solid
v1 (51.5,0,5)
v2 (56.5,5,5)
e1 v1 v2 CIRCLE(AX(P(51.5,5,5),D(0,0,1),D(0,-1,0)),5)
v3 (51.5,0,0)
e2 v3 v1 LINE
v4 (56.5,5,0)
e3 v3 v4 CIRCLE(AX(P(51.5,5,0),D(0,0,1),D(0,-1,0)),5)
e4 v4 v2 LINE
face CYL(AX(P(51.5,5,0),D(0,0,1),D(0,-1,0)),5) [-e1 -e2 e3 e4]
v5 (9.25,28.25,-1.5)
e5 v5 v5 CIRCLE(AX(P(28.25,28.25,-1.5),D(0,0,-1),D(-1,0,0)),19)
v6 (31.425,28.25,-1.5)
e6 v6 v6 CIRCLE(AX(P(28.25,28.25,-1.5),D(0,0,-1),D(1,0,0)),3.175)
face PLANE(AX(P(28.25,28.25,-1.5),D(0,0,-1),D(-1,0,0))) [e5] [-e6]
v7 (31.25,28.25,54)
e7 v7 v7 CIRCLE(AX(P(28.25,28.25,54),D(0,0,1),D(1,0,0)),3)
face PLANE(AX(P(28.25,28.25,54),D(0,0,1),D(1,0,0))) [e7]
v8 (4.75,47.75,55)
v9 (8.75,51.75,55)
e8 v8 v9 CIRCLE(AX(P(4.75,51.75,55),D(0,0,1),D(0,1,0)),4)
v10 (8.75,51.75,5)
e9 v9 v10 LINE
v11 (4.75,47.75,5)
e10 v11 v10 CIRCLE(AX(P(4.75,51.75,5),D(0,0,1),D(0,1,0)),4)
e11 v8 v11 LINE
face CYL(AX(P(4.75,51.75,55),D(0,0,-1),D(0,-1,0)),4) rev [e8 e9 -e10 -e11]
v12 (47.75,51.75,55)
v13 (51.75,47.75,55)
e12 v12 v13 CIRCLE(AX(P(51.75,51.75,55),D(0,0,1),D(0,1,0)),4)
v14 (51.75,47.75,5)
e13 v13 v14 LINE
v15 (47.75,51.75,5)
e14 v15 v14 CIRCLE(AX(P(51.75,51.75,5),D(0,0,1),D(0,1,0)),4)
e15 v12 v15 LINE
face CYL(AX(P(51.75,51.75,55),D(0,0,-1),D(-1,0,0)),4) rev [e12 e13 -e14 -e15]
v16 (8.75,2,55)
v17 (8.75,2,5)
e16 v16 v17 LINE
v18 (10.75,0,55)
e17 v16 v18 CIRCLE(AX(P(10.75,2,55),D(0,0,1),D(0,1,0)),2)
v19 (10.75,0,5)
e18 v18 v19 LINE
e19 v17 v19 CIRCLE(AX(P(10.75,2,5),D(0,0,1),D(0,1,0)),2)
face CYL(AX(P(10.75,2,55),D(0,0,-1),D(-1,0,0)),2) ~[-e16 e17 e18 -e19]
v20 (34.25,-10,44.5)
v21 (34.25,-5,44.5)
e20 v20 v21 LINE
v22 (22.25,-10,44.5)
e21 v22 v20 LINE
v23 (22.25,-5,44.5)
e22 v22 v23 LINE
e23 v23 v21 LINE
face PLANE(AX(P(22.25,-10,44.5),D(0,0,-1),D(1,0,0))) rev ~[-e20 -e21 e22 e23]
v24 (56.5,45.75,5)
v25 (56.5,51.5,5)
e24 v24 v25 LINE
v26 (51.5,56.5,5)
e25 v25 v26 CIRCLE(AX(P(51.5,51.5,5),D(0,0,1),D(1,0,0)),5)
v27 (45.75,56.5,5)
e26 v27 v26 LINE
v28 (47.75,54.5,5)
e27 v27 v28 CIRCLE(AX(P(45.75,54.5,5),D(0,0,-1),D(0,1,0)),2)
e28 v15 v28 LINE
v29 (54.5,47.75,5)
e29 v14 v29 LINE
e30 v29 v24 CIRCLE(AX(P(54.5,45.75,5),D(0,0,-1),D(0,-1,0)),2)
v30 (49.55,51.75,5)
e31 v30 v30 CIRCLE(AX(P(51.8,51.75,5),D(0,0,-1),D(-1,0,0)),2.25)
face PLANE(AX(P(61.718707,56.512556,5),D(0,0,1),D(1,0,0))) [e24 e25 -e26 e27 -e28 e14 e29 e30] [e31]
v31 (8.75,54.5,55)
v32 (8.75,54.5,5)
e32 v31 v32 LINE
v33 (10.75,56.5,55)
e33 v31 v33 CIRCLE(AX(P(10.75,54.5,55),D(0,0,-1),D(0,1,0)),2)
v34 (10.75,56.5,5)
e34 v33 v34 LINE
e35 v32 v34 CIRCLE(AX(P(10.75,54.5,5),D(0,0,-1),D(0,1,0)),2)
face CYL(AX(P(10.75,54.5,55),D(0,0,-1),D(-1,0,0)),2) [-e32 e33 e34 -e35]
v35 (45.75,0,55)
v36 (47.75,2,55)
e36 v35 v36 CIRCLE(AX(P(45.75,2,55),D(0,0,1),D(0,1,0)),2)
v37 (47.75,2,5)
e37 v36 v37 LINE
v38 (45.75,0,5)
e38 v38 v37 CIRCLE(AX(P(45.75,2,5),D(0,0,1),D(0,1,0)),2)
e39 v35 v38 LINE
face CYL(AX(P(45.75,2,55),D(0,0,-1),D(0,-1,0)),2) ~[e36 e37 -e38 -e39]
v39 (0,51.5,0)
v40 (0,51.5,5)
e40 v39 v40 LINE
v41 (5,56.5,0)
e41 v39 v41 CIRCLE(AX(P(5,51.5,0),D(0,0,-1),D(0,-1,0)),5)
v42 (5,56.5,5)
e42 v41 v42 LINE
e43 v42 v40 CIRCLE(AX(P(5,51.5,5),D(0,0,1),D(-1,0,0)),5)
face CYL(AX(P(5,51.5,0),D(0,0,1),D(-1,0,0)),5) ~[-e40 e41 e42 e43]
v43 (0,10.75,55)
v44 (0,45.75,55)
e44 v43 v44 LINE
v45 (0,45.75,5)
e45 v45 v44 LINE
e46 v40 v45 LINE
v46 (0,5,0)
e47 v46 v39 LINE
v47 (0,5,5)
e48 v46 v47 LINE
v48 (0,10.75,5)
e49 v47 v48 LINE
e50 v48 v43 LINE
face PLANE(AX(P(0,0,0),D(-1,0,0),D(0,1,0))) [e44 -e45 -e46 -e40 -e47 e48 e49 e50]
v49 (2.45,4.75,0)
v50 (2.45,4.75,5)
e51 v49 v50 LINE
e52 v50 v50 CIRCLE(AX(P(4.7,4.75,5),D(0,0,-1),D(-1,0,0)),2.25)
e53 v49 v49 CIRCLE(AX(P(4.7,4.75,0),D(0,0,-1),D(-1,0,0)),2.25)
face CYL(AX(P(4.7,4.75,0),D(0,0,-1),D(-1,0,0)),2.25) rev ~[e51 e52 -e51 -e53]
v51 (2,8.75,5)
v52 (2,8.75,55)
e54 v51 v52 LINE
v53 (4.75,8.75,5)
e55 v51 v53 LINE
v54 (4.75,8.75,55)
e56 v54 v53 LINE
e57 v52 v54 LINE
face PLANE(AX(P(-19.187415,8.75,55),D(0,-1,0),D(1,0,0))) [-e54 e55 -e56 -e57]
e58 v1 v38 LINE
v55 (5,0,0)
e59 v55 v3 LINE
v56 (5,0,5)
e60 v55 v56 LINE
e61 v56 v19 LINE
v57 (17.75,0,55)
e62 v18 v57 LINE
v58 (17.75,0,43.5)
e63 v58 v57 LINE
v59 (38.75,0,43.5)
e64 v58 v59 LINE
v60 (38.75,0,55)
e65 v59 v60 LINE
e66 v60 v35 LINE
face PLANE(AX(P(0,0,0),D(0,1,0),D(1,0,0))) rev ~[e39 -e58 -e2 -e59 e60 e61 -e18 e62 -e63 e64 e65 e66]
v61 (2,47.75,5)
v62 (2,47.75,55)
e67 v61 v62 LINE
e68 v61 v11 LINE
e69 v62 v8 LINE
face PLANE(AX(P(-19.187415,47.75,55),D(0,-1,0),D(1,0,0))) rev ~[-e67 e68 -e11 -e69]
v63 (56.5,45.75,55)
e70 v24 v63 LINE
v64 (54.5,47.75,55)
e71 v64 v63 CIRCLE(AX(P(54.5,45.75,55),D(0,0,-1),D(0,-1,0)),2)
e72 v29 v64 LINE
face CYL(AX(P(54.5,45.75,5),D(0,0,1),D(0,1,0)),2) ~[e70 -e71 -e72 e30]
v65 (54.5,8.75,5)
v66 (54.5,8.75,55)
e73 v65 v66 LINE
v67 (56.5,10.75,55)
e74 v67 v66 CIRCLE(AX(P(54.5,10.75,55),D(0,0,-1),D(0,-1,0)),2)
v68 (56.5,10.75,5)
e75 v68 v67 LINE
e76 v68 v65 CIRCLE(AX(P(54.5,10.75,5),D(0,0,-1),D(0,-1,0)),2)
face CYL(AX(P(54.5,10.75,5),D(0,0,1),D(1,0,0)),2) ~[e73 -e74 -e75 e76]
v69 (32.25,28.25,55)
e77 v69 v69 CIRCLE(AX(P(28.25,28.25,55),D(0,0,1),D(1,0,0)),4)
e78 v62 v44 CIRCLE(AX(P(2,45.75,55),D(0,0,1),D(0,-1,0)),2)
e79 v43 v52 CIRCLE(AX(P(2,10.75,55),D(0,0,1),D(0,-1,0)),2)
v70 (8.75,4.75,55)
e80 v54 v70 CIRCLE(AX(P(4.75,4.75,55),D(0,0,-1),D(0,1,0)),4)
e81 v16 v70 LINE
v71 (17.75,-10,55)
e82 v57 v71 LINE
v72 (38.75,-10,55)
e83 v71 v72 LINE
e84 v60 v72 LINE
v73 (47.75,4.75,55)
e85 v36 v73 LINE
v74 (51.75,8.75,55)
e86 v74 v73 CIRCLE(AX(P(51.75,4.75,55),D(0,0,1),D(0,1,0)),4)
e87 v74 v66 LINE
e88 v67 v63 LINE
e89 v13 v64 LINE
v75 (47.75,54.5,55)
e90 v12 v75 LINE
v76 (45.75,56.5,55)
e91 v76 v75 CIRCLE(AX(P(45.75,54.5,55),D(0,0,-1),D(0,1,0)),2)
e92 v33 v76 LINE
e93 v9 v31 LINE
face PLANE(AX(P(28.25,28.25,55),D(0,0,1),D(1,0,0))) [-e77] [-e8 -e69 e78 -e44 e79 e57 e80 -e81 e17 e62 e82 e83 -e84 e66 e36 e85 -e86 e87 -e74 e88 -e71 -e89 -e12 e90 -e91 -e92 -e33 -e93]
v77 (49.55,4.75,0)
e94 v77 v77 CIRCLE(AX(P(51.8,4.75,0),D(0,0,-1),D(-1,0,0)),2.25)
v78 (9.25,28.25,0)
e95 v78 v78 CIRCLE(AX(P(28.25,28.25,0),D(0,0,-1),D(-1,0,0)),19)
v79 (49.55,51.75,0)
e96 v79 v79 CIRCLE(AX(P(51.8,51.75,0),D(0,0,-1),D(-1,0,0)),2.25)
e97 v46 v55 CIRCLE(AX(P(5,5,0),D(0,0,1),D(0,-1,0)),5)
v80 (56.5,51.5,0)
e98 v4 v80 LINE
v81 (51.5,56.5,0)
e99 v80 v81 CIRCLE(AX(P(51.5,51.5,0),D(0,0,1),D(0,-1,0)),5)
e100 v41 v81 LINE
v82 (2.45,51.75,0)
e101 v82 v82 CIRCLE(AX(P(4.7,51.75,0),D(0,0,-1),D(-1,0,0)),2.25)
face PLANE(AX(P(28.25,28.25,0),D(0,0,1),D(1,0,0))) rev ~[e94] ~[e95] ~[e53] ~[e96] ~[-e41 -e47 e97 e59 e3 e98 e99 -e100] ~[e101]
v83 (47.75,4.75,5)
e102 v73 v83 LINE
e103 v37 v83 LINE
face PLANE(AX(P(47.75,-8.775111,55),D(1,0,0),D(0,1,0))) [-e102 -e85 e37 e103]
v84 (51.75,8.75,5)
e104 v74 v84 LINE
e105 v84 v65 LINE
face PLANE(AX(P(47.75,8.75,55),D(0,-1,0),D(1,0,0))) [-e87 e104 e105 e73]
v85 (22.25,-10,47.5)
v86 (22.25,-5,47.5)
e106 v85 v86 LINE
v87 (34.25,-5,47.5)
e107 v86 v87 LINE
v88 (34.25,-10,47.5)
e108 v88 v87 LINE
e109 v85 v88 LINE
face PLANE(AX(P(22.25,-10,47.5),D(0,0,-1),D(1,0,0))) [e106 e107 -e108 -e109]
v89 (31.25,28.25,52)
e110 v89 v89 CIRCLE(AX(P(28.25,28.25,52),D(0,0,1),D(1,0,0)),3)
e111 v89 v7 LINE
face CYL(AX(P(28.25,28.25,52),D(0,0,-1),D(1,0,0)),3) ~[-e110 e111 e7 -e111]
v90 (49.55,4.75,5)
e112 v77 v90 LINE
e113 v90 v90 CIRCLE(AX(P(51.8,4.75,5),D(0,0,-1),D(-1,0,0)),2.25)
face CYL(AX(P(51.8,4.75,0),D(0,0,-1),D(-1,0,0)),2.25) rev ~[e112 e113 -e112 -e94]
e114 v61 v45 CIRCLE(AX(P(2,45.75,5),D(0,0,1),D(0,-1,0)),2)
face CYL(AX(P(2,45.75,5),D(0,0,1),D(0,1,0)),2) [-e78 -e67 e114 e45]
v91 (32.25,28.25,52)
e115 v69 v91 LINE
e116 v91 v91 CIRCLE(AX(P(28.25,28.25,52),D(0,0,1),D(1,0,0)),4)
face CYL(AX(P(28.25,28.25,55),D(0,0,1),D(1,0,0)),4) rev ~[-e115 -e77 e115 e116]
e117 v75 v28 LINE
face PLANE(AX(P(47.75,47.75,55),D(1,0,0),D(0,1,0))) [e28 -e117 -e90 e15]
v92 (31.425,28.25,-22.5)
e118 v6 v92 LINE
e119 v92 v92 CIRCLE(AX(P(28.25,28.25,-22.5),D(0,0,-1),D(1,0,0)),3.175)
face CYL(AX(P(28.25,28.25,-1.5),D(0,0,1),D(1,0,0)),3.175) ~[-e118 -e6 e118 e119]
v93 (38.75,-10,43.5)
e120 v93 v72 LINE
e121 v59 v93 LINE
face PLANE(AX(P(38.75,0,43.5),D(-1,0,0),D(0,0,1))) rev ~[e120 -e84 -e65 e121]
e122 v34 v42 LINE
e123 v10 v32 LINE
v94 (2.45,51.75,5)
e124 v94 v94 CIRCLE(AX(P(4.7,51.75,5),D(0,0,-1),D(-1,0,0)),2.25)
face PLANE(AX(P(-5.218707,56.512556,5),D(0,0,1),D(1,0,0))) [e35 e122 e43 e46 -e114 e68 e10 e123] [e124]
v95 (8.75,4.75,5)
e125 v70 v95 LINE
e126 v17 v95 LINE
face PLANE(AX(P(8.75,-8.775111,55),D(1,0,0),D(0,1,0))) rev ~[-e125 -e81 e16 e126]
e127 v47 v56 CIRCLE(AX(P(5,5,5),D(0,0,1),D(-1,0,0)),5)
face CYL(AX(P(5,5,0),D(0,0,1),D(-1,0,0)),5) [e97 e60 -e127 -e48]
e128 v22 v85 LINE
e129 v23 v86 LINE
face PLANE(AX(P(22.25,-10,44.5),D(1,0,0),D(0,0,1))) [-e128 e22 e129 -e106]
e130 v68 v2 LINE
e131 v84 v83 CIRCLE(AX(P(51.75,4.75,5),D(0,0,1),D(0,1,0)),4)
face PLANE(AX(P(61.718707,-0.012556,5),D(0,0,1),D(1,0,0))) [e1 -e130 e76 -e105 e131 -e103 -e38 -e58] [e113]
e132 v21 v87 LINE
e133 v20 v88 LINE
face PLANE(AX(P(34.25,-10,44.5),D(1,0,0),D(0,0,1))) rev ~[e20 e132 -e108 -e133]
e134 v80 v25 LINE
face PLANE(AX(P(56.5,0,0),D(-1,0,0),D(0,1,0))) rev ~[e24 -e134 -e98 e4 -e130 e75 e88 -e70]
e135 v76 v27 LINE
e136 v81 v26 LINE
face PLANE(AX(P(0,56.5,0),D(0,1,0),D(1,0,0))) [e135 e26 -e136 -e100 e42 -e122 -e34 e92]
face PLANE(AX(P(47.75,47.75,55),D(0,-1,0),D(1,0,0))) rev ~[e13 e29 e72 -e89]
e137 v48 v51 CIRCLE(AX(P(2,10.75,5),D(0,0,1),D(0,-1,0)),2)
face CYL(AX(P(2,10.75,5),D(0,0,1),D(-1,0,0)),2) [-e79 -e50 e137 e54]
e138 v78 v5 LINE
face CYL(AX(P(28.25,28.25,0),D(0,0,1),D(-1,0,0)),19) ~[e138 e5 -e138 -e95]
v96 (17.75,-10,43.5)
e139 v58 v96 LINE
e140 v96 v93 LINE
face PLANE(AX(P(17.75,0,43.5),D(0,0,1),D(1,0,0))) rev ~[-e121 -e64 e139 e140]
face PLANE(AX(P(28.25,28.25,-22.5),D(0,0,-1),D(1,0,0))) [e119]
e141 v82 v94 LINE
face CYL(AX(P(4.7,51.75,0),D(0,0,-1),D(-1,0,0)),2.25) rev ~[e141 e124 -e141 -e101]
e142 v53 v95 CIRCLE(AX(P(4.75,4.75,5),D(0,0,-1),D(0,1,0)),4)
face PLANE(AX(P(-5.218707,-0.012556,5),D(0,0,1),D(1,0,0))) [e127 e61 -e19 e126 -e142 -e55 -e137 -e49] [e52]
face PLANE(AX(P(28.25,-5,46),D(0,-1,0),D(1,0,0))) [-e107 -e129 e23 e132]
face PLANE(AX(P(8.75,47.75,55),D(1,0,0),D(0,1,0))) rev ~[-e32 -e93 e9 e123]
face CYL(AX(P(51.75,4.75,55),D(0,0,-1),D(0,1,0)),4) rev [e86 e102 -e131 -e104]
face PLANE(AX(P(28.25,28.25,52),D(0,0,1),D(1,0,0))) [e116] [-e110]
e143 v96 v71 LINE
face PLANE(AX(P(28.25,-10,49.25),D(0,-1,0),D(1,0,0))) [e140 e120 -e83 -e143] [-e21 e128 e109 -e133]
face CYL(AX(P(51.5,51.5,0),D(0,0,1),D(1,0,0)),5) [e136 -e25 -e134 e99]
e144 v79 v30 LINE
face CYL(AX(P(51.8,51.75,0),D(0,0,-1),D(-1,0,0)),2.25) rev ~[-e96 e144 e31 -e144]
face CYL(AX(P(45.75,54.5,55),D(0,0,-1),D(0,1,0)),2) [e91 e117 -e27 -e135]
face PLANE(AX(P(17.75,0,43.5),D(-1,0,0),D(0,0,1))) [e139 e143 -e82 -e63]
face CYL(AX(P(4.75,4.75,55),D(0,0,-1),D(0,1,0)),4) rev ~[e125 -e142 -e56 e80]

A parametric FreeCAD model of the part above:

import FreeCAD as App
import Part
import Sketcher
from FreeCAD import Vector
Q = App.Units.Quantity


def edges_at(feature, points):
    """Names of the edges that pass closest to the given points."""
    edges = feature.Shape.Edges
    near = lambda p: min(range(len(edges)), key=lambda i: edges[i].distToShape(Part.Vertex(*p))[0])
    return sorted({f"Edge{near(p) + 1}" for p in points})


def add_polygon(sketch, points):
    """Adds a closed chain of lines whose ends are joined by coincident constraints."""
    first, n = sketch.GeometryCount, len(points)
    for a, b in zip(points, points[1:] + points[:1]):
        sketch.addGeometry(Part.LineSegment(App.Vector(*a, 0), App.Vector(*b, 0)), False)
    for i in range(n):
        sketch.addConstraint(Sketcher.Constraint("Coincident", first + i, 2, first + (i + 1) % n, 1))

doc = App.newDocument("Part")
params = doc.addObject("Spreadsheet::Sheet", "Params")
for row, (alias, value) in enumerate([
    ("sketch1_width", "56.5 mm"),
    ("pad1_length", "55 mm"),
    ("fillet_radius", "5 mm"),
    ("pocket1_length", "50 mm"),
    ("fillet2_radius", "4 mm"),
    ("fillet3_radius", "2 mm"),
    ("sketch3_diameter", "38 mm"),
    ("pad2_length", "1.5 mm"),
    ("sketch4_diameter", "8 mm"),
    ("pocket2_length", "3 mm"),
    ("sketch5_diameter", "6 mm"),
    ("pad3_length", "2 mm"),
    ("sketch6_diameter", "6.35 mm"),
    ("pad4_length", "21 mm"),
    ("sketch7_diameter", "4.5 mm"),
    ("pocket3_length", "21 mm"),
    ("sketch8_width", "21 mm"),
    ("sketch8_height", "11.5 mm"),
    ("pad5_length", "10 mm"),
    ("sketch9_width", "12 mm"),
    ("sketch9_height", "3 mm"),
    ("pocket4_length", "5 mm"),
], start=1):
    params.set(f"A{row}", alias)
    params.set(f"B{row}", "=" + value)
    params.setAlias(f"B{row}", alias)

body = doc.addObject("PartDesign::Body", "Body")

sketch1 = body.newObject("Sketcher::SketchObject", "Sketch")
sketch1.AttachmentSupport = (doc.getObject("XY_Plane"), [""])
sketch1.MapMode = "FlatFace"
add_polygon(sketch1, [(0, 56), (0, 0), (56, 0), (56, 56)])
sketch1.addConstraint([
    Sketcher.Constraint("Vertical", 0),
    Sketcher.Constraint("Horizontal", 1),
    Sketcher.Constraint("Vertical", 2),
    Sketcher.Constraint("Horizontal", 3),
    Sketcher.Constraint("Coincident", 0, 2, -1, 1),
    Sketcher.Constraint("Equal", 3, 0),
    Sketcher.Constraint("DistanceX", 1, 1, 1, 2, Q("56.5 mm")),
])
sketch1.setExpression("Constraints[10]", "Params.sketch1_width")
pad1 = body.newObject("PartDesign::Pad", "Pad")
pad1.Profile = sketch1
pad1.setExpression("Length", "Params.pad1_length")
doc.recompute()

fillet = body.newObject("PartDesign::Fillet", "Fillet")
fillet.Base = (pad1, edges_at(pad1, [
    (0, 56.5, 27.5),
    (56.5, 56.5, 27.5),
    (56.5, 0, 27.5),
    (0, 0, 27.5),
]))
fillet.setExpression("Radius", "Params.fillet_radius")

sketch2 = body.newObject("Sketcher::SketchObject", "Sketch001")
sketch2.AttachmentSupport = (doc.getObject("XY_Plane"), [""])
sketch2.MapMode = "FlatFace"
sketch2.AttachmentOffset = App.Placement(Vector(0, 0, 55), App.Rotation())
add_polygon(sketch2, [(-19, 65), (-19, 48), (9, 48), (9, 65)])
add_polygon(sketch2, [(48, 65), (48, 48), (76, 48), (76, 65)])
add_polygon(sketch2, [(48, 9), (48, -9), (76, -9), (76, 9)])
add_polygon(sketch2, [(-19, 9), (-19, -9), (9, -9), (9, 9)])
sketch2.addConstraint([
    Sketcher.Constraint("Vertical", 0),
    Sketcher.Constraint("Horizontal", 1),
    Sketcher.Constraint("Vertical", 2),
    Sketcher.Constraint("Horizontal", 3),
    Sketcher.Constraint("Vertical", 4),
    Sketcher.Constraint("Horizontal", 5),
    Sketcher.Constraint("Vertical", 6),
    Sketcher.Constraint("Horizontal", 7),
    Sketcher.Constraint("Vertical", 8),
    Sketcher.Constraint("Horizontal", 9),
    Sketcher.Constraint("Vertical", 10),
    Sketcher.Constraint("Horizontal", 11),
    Sketcher.Constraint("Vertical", 12),
    Sketcher.Constraint("Horizontal", 13),
    Sketcher.Constraint("Vertical", 14),
    Sketcher.Constraint("Horizontal", 15),
    Sketcher.Constraint("Horizontal", 1, 2, 4, 2),
    Sketcher.Constraint("Horizontal", 3, 2, 6, 2),
    Sketcher.Constraint("Horizontal", 9, 2, 12, 2),
    Sketcher.Constraint("Horizontal", 11, 2, 14, 2),
    Sketcher.Constraint("Vertical", 7, 2, 8, 2),
    Sketcher.Constraint("Vertical", 6, 2, 9, 2),
    Sketcher.Constraint("Vertical", 3, 2, 12, 2),
    Sketcher.Constraint("Vertical", 2, 2, 13, 2),
    Sketcher.Constraint("Equal", 3, 5),
    Sketcher.Constraint("Equal", 6, 8),
    Sketcher.Constraint("DistanceX", 1, 2, 4, 2, Q("39 mm")),
    Sketcher.Constraint("DistanceY", 10, 2, 5, 2, Q("39 mm")),
    Sketcher.Constraint("DistanceY", -1, 1, 0, 2, Q("47.75 mm")),
    Sketcher.Constraint("DistanceX", -1, 1, 1, 2, Q("8.75 mm")),
    Sketcher.Constraint("DistanceY", 0, 2, 0, 1, Q("17.525111 mm")),
    Sketcher.Constraint("DistanceX", 1, 1, 1, 2, Q("27.937415 mm")),
])
pocket1 = body.newObject("PartDesign::Pocket", "Pocket")
pocket1.Profile = sketch2
pocket1.setExpression("Length", "Params.pocket1_length")
doc.recompute()

fillet2 = body.newObject("PartDesign::Fillet", "Fillet001")
fillet2.Base = (pocket1, edges_at(pocket1, [
    (8.75, 8.75, 30),
    (8.75, 47.75, 30),
    (47.75, 47.75, 30),
    (47.75, 8.75, 30),
]))
fillet2.setExpression("Radius", "Params.fillet2_radius")
doc.recompute()

fillet3 = body.newObject("PartDesign::Fillet", "Fillet002")
fillet3.Base = (fillet2, edges_at(fillet2, [
    (0, 8.75, 30),
    (8.75, 0, 30),
    (8.75, 56.5, 30),
    (0, 47.75, 30),
    (56.5, 47.75, 30),
    (47.75, 56.5, 30),
    (47.75, 0, 30),
    (56.5, 8.75, 30),
]))
fillet3.setExpression("Radius", "Params.fillet3_radius")

sketch3 = body.newObject("Sketcher::SketchObject", "Sketch002")
sketch3.AttachmentSupport = (doc.getObject("XY_Plane"), [""])
sketch3.MapMode = "FlatFace"
sketch3.addGeometry(Part.Circle(Vector(28, 28, 0), Vector(0, 0, 1), 19), False)
sketch3.addConstraint([
    Sketcher.Constraint("Diameter", 0, Q("38 mm")),
    Sketcher.Constraint("DistanceX", -1, 1, 0, 3, Q("28.25 mm")),
    Sketcher.Constraint("DistanceY", -1, 1, 0, 3, Q("28.25 mm")),
])
sketch3.setExpression("Constraints[0]", "Params.sketch3_diameter")
pad2 = body.newObject("PartDesign::Pad", "Pad001")
pad2.Profile = sketch3
pad2.setExpression("Length", "Params.pad2_length")
pad2.Reversed = True

sketch4 = body.newObject("Sketcher::SketchObject", "Sketch003")
sketch4.AttachmentSupport = (doc.getObject("XY_Plane"), [""])
sketch4.MapMode = "FlatFace"
sketch4.AttachmentOffset = App.Placement(Vector(0, 0, 55), App.Rotation())
sketch4.addGeometry(Part.Circle(Vector(28.2, 28.2, 0), Vector(0, 0, 1), 4), False)
sketch4.addConstraint([
    Sketcher.Constraint("Diameter", 0, Q("8 mm")),
    Sketcher.Constraint("DistanceX", -1, 1, 0, 3, Q("28.25 mm")),
    Sketcher.Constraint("DistanceY", -1, 1, 0, 3, Q("28.25 mm")),
])
sketch4.setExpression("Constraints[0]", "Params.sketch4_diameter")
pocket2 = body.newObject("PartDesign::Pocket", "Pocket001")
pocket2.Profile = sketch4
pocket2.setExpression("Length", "Params.pocket2_length")

sketch5 = body.newObject("Sketcher::SketchObject", "Sketch004")
sketch5.AttachmentSupport = (doc.getObject("XY_Plane"), [""])
sketch5.MapMode = "FlatFace"
sketch5.AttachmentOffset = App.Placement(Vector(0, 0, 52), App.Rotation())
sketch5.addGeometry(Part.Circle(Vector(28.2, 28.2, 0), Vector(0, 0, 1), 3), False)
sketch5.addConstraint([
    Sketcher.Constraint("Diameter", 0, Q("6 mm")),
    Sketcher.Constraint("DistanceX", -1, 1, 0, 3, Q("28.25 mm")),
    Sketcher.Constraint("DistanceY", -1, 1, 0, 3, Q("28.25 mm")),
])
sketch5.setExpression("Constraints[0]", "Params.sketch5_diameter")
pad3 = body.newObject("PartDesign::Pad", "Pad002")
pad3.Profile = sketch5
pad3.setExpression("Length", "Params.pad3_length")

sketch6 = body.newObject("Sketcher::SketchObject", "Sketch005")
sketch6.AttachmentSupport = (doc.getObject("XY_Plane"), [""])
sketch6.MapMode = "FlatFace"
sketch6.AttachmentOffset = App.Placement(Vector(0, 0, -1.5), App.Rotation())
sketch6.addGeometry(Part.Circle(Vector(28.2, 28.2, 0), Vector(0, 0, 1), 3.2), False)
sketch6.addConstraint([
    Sketcher.Constraint("Diameter", 0, Q("6.35 mm")),
    Sketcher.Constraint("DistanceX", -1, 1, 0, 3, Q("28.25 mm")),
    Sketcher.Constraint("DistanceY", -1, 1, 0, 3, Q("28.25 mm")),
])
sketch6.setExpression("Constraints[0]", "Params.sketch6_diameter")
pad4 = body.newObject("PartDesign::Pad", "Pad003")
pad4.Profile = sketch6
pad4.setExpression("Length", "Params.pad4_length")
pad4.Reversed = True

sketch7 = body.newObject("Sketcher::SketchObject", "Sketch006")
sketch7.AttachmentSupport = (doc.getObject("XY_Plane"), [""])
sketch7.MapMode = "FlatFace"
sketch7.addGeometry([
    Part.Circle(Vector(51.8, 4.8, 0), Vector(0, 0, 1), 2.2),
    Part.Circle(Vector(4.7, 4.8, 0), Vector(0, 0, 1), 2.2),
    Part.Circle(Vector(4.7, 51.8, 0), Vector(0, 0, 1), 2.2),
    Part.Circle(Vector(51.8, 51.8, 0), Vector(0, 0, 1), 2.2),
], False)
sketch7.addConstraint([
    Sketcher.Constraint("Equal", 0, 1),
    Sketcher.Constraint("Equal", 1, 2),
    Sketcher.Constraint("Equal", 2, 3),
    Sketcher.Constraint("Horizontal", 0, 3, 1, 3),
    Sketcher.Constraint("Horizontal", 2, 3, 3, 3),
    Sketcher.Constraint("Vertical", 1, 3, 2, 3),
    Sketcher.Constraint("Vertical", 0, 3, 3, 3),
    Sketcher.Constraint("Diameter", 0, Q("4.5 mm")),
    Sketcher.Constraint("DistanceY", 1, 3, 2, 3, Q("47 mm")),
    Sketcher.Constraint("DistanceX", -1, 1, 0, 3, Q("51.8 mm")),
    Sketcher.Constraint("DistanceX", -1, 1, 1, 3, Q("4.7 mm")),
    Sketcher.Constraint("DistanceY", -1, 1, 0, 3, Q("4.75 mm")),
])
sketch7.setExpression("Constraints[7]", "Params.sketch7_diameter")
pocket3 = body.newObject("PartDesign::Pocket", "Pocket002")
pocket3.Profile = sketch7
pocket3.setExpression("Length", "Params.pocket3_length")
pocket3.Reversed = True

sketch8 = body.newObject("Sketcher::SketchObject", "Sketch007")
sketch8.AttachmentSupport = (doc.getObject("XZ_Plane"), [""])
sketch8.MapMode = "FlatFace"
add_polygon(sketch8, [(18, 55), (18, 44), (39, 44), (39, 55)])
sketch8.addConstraint([
    Sketcher.Constraint("Vertical", 0),
    Sketcher.Constraint("Horizontal", 1),
    Sketcher.Constraint("Vertical", 2),
    Sketcher.Constraint("Horizontal", 3),
    Sketcher.Constraint("DistanceX", 1, 1, 1, 2, Q("21 mm")),
    Sketcher.Constraint("DistanceY", 0, 2, 0, 1, Q("11.5 mm")),
    Sketcher.Constraint("DistanceY", -1, 1, 2, 2, Q("55 mm")),
    Sketcher.Constraint("DistanceX", -1, 1, 0, 2, Q("17.75 mm")),
])
sketch8.setExpression("Constraints[8]", "Params.sketch8_width")
sketch8.setExpression("Constraints[9]", "Params.sketch8_height")
pad5 = body.newObject("PartDesign::Pad", "Pad004")
pad5.Profile = sketch8
pad5.setExpression("Length", "Params.pad5_length")

sketch9 = body.newObject("Sketcher::SketchObject", "Sketch008")
sketch9.AttachmentSupport = (doc.getObject("XZ_Plane"), [""])
sketch9.MapMode = "FlatFace"
sketch9.AttachmentOffset = App.Placement(Vector(0, 0, 10), App.Rotation())
add_polygon(sketch9, [(22.2, 47.5), (22.2, 44.5), (34.2, 44.5), (34.2, 47.5)])
sketch9.addConstraint([
    Sketcher.Constraint("Vertical", 0),
    Sketcher.Constraint("Horizontal", 1),
    Sketcher.Constraint("Vertical", 2),
    Sketcher.Constraint("Horizontal", 3),
    Sketcher.Constraint("DistanceX", 1, 1, 1, 2, Q("12 mm")),
    Sketcher.Constraint("DistanceY", 0, 2, 0, 1, Q("3 mm")),
    Sketcher.Constraint("DistanceY", -1, 1, 0, 2, Q("44.5 mm")),
    Sketcher.Constraint("DistanceX", -1, 1, 0, 2, Q("22.25 mm")),
])
sketch9.setExpression("Constraints[8]", "Params.sketch9_width")
sketch9.setExpression("Constraints[9]", "Params.sketch9_height")
pocket4 = body.newObject("PartDesign::Pocket", "Pocket003")
pocket4.Profile = sketch9
pocket4.setExpression("Length", "Params.pocket4_length")

doc.recompute()
